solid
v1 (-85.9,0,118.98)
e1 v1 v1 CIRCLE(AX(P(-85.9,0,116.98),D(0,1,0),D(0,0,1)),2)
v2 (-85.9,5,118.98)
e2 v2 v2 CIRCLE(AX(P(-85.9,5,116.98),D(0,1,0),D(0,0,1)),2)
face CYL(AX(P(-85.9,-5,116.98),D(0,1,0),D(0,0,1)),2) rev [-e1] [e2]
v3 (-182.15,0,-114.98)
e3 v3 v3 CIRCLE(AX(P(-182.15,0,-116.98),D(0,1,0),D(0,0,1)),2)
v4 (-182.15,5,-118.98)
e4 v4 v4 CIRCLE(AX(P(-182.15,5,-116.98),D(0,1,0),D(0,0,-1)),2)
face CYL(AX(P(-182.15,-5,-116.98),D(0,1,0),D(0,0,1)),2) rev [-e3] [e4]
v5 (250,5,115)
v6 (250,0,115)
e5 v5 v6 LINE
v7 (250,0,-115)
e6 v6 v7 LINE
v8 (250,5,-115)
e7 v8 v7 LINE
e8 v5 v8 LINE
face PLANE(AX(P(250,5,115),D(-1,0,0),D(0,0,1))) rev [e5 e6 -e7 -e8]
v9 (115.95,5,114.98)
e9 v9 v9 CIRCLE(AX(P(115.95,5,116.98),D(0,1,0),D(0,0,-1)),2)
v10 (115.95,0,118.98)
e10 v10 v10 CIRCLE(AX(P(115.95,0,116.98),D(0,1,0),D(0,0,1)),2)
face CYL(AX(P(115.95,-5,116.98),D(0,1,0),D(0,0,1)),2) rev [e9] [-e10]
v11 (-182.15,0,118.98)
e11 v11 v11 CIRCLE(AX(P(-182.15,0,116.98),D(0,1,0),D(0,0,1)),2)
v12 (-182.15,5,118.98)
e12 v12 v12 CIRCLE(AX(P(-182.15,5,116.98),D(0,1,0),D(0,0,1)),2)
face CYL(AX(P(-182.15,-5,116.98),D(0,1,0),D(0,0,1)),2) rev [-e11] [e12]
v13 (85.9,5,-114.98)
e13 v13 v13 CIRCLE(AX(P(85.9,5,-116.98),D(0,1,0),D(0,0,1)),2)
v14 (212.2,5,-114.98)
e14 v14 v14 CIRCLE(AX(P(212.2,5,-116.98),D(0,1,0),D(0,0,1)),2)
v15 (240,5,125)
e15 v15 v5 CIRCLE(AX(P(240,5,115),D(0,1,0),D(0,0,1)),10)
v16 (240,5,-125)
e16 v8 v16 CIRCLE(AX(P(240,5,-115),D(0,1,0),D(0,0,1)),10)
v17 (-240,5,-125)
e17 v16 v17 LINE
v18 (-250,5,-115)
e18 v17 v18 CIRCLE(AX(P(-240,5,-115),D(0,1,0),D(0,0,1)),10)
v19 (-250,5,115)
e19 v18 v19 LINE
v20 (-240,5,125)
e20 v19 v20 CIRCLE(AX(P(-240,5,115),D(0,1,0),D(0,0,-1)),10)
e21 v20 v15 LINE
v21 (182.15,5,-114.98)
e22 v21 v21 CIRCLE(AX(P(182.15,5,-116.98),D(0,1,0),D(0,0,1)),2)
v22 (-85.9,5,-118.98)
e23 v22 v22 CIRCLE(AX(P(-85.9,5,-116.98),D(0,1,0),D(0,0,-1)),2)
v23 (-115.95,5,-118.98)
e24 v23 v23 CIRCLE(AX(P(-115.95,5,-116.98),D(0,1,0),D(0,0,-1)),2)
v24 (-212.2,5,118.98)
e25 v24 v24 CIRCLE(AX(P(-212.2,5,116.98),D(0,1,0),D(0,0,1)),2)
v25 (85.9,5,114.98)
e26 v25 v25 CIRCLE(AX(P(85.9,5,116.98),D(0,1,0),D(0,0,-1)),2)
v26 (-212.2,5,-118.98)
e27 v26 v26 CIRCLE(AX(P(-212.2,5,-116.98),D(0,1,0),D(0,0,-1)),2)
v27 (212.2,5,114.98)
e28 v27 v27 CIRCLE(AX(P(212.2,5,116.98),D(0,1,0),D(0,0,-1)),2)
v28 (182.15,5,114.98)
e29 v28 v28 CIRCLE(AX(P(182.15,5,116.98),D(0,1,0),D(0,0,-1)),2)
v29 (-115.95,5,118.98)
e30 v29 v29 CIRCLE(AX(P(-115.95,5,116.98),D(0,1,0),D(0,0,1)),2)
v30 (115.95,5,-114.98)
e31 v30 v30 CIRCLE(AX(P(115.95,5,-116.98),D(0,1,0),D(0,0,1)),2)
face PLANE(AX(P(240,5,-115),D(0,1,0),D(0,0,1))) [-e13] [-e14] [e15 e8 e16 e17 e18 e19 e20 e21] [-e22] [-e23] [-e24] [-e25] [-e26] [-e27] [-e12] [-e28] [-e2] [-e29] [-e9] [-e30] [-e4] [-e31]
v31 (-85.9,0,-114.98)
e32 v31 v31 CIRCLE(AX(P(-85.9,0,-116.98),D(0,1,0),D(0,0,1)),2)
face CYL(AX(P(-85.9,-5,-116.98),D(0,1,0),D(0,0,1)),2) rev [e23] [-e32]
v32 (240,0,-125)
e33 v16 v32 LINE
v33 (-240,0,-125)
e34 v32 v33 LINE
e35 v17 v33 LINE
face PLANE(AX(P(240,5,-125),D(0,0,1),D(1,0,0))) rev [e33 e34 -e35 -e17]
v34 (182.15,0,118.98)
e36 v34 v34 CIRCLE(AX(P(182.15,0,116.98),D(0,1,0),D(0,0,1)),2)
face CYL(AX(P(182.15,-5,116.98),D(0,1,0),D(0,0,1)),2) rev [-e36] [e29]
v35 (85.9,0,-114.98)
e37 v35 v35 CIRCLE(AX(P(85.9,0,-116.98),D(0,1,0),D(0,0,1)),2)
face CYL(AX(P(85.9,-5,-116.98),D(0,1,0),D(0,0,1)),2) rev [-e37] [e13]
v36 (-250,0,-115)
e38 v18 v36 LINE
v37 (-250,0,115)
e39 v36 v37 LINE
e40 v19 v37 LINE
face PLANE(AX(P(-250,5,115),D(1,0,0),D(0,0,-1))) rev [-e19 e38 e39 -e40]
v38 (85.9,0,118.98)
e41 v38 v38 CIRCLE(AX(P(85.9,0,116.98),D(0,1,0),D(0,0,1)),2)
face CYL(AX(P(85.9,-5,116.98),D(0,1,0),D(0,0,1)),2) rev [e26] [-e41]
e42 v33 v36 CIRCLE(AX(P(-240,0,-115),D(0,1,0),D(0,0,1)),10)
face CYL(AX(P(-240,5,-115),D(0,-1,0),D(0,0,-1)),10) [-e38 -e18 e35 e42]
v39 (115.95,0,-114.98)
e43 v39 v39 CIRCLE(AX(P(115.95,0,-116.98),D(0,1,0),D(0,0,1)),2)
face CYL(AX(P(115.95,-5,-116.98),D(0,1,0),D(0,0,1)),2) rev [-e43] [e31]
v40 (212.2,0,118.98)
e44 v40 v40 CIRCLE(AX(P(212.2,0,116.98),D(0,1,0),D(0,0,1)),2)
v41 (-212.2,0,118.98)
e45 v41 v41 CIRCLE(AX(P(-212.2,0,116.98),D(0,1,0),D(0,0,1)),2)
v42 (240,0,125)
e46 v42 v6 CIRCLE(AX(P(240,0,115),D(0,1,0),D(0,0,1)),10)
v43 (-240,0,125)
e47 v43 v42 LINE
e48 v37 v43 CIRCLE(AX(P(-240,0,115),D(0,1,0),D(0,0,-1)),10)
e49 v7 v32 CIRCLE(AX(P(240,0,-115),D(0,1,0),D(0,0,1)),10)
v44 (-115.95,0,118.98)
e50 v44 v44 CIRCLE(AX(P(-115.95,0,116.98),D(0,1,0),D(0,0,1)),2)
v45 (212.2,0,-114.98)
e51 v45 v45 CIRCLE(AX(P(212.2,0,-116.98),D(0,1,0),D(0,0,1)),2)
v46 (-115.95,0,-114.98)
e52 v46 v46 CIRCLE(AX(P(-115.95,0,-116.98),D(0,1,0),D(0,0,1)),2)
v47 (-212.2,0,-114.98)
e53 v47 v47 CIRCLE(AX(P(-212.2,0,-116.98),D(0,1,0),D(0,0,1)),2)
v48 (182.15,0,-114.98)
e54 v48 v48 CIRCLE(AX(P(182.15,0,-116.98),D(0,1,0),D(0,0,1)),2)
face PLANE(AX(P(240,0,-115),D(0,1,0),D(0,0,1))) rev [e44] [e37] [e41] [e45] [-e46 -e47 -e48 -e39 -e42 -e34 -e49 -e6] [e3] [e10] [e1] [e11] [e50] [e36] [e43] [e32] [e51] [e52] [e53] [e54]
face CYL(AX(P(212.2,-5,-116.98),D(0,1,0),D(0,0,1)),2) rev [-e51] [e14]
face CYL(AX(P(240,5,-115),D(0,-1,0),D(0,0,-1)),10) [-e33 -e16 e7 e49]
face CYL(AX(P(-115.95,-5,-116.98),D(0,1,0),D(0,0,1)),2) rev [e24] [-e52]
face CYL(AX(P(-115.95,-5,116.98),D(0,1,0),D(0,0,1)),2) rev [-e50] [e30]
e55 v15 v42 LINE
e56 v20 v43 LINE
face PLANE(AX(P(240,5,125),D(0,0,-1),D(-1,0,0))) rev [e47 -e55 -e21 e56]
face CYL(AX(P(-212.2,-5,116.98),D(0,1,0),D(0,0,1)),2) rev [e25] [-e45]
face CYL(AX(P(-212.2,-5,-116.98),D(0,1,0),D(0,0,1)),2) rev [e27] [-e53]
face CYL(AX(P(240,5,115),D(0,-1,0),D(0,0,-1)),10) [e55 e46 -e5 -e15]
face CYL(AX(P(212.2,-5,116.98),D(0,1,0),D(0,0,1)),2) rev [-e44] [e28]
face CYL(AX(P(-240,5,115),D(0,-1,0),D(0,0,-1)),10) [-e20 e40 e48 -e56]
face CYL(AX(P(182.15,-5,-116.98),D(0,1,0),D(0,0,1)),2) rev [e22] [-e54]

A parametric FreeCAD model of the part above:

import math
import FreeCAD as App
import Part
import Sketcher
Q = App.Units.Quantity

doc = App.newDocument("Part")
body = doc.addObject("PartDesign::Body", "Body")

# Sketch on XZ plane
sketch1 = doc.addObject("Sketcher::SketchObject", "Sketch")
body.addObject(sketch1)
sketch1.AttachmentSupport = (doc.XZ_Plane, [""])
sketch1.MapMode = "FlatFace"
sketch1.addGeometry(Part.LineSegment(App.Vector(-240, 125, 0), App.Vector(240, 125, 0)), False)
sketch1.addGeometry(Part.ArcOfCircle(Part.Circle(App.Vector(240, 115, 0), App.Vector(0, 0, 1), 10), math.radians(0), math.radians(90)), False)
sketch1.addGeometry(Part.LineSegment(App.Vector(250, 115, 0), App.Vector(250, -115, 0)), False)
sketch1.addGeometry(Part.ArcOfCircle(Part.Circle(App.Vector(240, -115, 0), App.Vector(0, 0, 1), 10), math.radians(-90), math.radians(0)), False)
sketch1.addGeometry(Part.LineSegment(App.Vector(240, -125, 0), App.Vector(-240, -125, 0)), False)
sketch1.addGeometry(Part.ArcOfCircle(Part.Circle(App.Vector(-240, -115, 0), App.Vector(0, 0, 1), 10), math.radians(180), math.radians(270)), False)
sketch1.addGeometry(Part.LineSegment(App.Vector(-250, -115, 0), App.Vector(-250, 115, 0)), False)
sketch1.addGeometry(Part.ArcOfCircle(Part.Circle(App.Vector(-240, 115, 0), App.Vector(0, 0, 1), 10), math.radians(90), math.radians(180)), False)
sketch1.addConstraint(Sketcher.Constraint("Tangent", 0, 2, 1, 2))
sketch1.addConstraint(Sketcher.Constraint("Tangent", 1, 1, 2, 1))
sketch1.addConstraint(Sketcher.Constraint("Tangent", 2, 2, 3, 2))
sketch1.addConstraint(Sketcher.Constraint("Tangent", 3, 1, 4, 1))
sketch1.addConstraint(Sketcher.Constraint("Tangent", 4, 2, 5, 2))
sketch1.addConstraint(Sketcher.Constraint("Tangent", 5, 1, 6, 1))
sketch1.addConstraint(Sketcher.Constraint("Tangent", 6, 2, 7, 2))
sketch1.addConstraint(Sketcher.Constraint("Tangent", 7, 1, 0, 1))
sketch1.addConstraint(Sketcher.Constraint("Horizontal", 0))
sketch1.addConstraint(Sketcher.Constraint("Vertical", 2))
sketch1.addConstraint(Sketcher.Constraint("Horizontal", 4))
sketch1.addConstraint(Sketcher.Constraint("Vertical", 6))
sketch1.addConstraint(Sketcher.Constraint("Equal", 1, 3))
sketch1.addConstraint(Sketcher.Constraint("Equal", 3, 5))
sketch1.addConstraint(Sketcher.Constraint("Equal", 5, 7))
sketch1.addConstraint(Sketcher.Constraint("Symmetric", 1, 3, 5, 3, -1, 1))
sketch1.addConstraint(Sketcher.Constraint("Radius", 1, Q("10 mm")))
sketch1.addConstraint(Sketcher.Constraint("DistanceX", 0, 1, 0, 2, Q("480 mm")))
sketch1.addConstraint(Sketcher.Constraint("DistanceY", 2, 2, 2, 1, Q("230 mm")))
pad1 = doc.addObject("PartDesign::Pad", "Pad")
body.addObject(pad1)
pad1.Profile = sketch1
pad1.Length = 5
pad1.Reversed = True

# Sketch on XZ plane
sketch2 = doc.addObject("Sketcher::SketchObject", "Sketch001")
body.addObject(sketch2)
sketch2.AttachmentSupport = (doc.XZ_Plane, [""])
sketch2.MapMode = "FlatFace"
sketch2.AttachmentOffset = App.Placement(App.Vector(0, 0, -5), App.Rotation())
sketch2.addGeometry(Part.Circle(App.Vector(-212.2, 117, 0), App.Vector(0, 0, 1), 2), False)
sketch2.addGeometry(Part.Circle(App.Vector(-182.2, 117, 0), App.Vector(0, 0, 1), 2), False)
sketch2.addGeometry(Part.Circle(App.Vector(-85.9, 117, 0), App.Vector(0, 0, 1), 2), False)
sketch2.addGeometry(Part.Circle(App.Vector(-116, 117, 0), App.Vector(0, 0, 1), 2), False)
sketch2.addGeometry(Part.Circle(App.Vector(212.2, 117, 0), App.Vector(0, 0, 1), 2), False)
sketch2.addGeometry(Part.Circle(App.Vector(182.2, 117, 0), App.Vector(0, 0, 1), 2), False)
sketch2.addGeometry(Part.Circle(App.Vector(116, 117, 0), App.Vector(0, 0, 1), 2), False)
sketch2.addGeometry(Part.Circle(App.Vector(85.9, 117, 0), App.Vector(0, 0, 1), 2), False)
sketch2.addGeometry(Part.Circle(App.Vector(212.2, -117, 0), App.Vector(0, 0, 1), 2), False)
sketch2.addGeometry(Part.Circle(App.Vector(182.2, -117, 0), App.Vector(0, 0, 1), 2), False)
sketch2.addGeometry(Part.Circle(App.Vector(116, -117, 0), App.Vector(0, 0, 1), 2), False)
sketch2.addGeometry(Part.Circle(App.Vector(85.9, -117, 0), App.Vector(0, 0, 1), 2), False)
sketch2.addGeometry(Part.Circle(App.Vector(-182.2, -117, 0), App.Vector(0, 0, 1), 2), False)
sketch2.addGeometry(Part.Circle(App.Vector(-212.2, -117, 0), App.Vector(0, 0, 1), 2), False)
sketch2.addGeometry(Part.Circle(App.Vector(-85.9, -117, 0), App.Vector(0, 0, 1), 2), False)
sketch2.addGeometry(Part.Circle(App.Vector(-116, -117, 0), App.Vector(0, 0, 1), 2), False)
sketch2.addConstraint(Sketcher.Constraint("Equal", 0, 1))
sketch2.addConstraint(Sketcher.Constraint("Equal", 1, 2))
sketch2.addConstraint(Sketcher.Constraint("Equal", 2, 3))
sketch2.addConstraint(Sketcher.Constraint("Equal", 3, 4))
sketch2.addConstraint(Sketcher.Constraint("Equal", 4, 5))
sketch2.addConstraint(Sketcher.Constraint("Equal", 5, 6))
sketch2.addConstraint(Sketcher.Constraint("Equal", 6, 7))
sketch2.addConstraint(Sketcher.Constraint("Equal", 7, 8))
sketch2.addConstraint(Sketcher.Constraint("Equal", 8, 9))
sketch2.addConstraint(Sketcher.Constraint("Equal", 9, 10))
sketch2.addConstraint(Sketcher.Constraint("Equal", 10, 11))
sketch2.addConstraint(Sketcher.Constraint("Equal", 11, 12))
sketch2.addConstraint(Sketcher.Constraint("Equal", 12, 13))
sketch2.addConstraint(Sketcher.Constraint("Equal", 13, 14))
sketch2.addConstraint(Sketcher.Constraint("Equal", 14, 15))
sketch2.addConstraint(Sketcher.Constraint("Symmetric", 0, 3, 8, 3, -1, 1))
sketch2.addConstraint(Sketcher.Constraint("Symmetric", 1, 3, 9, 3, -1, 1))
sketch2.addConstraint(Sketcher.Constraint("Symmetric", 3, 3, 10, 3, -1, 1))
sketch2.addConstraint(Sketcher.Constraint("Symmetric", 2, 3, 11, 3, -1, 1))
sketch2.addConstraint(Sketcher.Constraint("Symmetric", 5, 3, 12, 3, -1, 1))
sketch2.addConstraint(Sketcher.Constraint("Symmetric", 4, 3, 13, 3, -1, 1))
sketch2.addConstraint(Sketcher.Constraint("Symmetric", 7, 3, 14, 3, -1, 1))
sketch2.addConstraint(Sketcher.Constraint("Symmetric", 6, 3, 15, 3, -1, 1))
sketch2.addConstraint(Sketcher.Constraint("Symmetric", 0, 3, 4, 3, -2))
sketch2.addConstraint(Sketcher.Constraint("Symmetric", 1, 3, 5, 3, -2))
sketch2.addConstraint(Sketcher.Constraint("Symmetric", 3, 3, 6, 3, -2))
sketch2.addConstraint(Sketcher.Constraint("Symmetric", 2, 3, 7, 3, -2))
sketch2.addConstraint(Sketcher.Constraint("Horizontal", 0, 3, 1, 3))
sketch2.addConstraint(Sketcher.Constraint("Horizontal", 1, 3, 2, 3))
sketch2.addConstraint(Sketcher.Constraint("Horizontal", 2, 3, 3, 3))
sketch2.addConstraint(Sketcher.Constraint("Diameter", 0, Q("4 mm")))
sketch2.addConstraint(Sketcher.Constraint("DistanceX", 0, 3, -1, 1, Q("212.2 mm")))
sketch2.addConstraint(Sketcher.Constraint("DistanceX", 2, 3, -1, 1, Q("85.9 mm")))
sketch2.addConstraint(Sketcher.Constraint("DistanceX", 1, 3, 3, 3, Q("66.2 mm")))
sketch2.addConstraint(Sketcher.Constraint("DistanceX", 3, 3, 5, 3, Q("298.1 mm")))
sketch2.addConstraint(Sketcher.Constraint("DistanceY", -1, 1, 0, 3, Q("116.98 mm")))
pocket1 = doc.addObject("PartDesign::Pocket", "Pocket")
body.addObject(pocket1)
pocket1.Profile = sketch2
pocket1.Length = 10
pocket1.Reversed = True

doc.recompute()
